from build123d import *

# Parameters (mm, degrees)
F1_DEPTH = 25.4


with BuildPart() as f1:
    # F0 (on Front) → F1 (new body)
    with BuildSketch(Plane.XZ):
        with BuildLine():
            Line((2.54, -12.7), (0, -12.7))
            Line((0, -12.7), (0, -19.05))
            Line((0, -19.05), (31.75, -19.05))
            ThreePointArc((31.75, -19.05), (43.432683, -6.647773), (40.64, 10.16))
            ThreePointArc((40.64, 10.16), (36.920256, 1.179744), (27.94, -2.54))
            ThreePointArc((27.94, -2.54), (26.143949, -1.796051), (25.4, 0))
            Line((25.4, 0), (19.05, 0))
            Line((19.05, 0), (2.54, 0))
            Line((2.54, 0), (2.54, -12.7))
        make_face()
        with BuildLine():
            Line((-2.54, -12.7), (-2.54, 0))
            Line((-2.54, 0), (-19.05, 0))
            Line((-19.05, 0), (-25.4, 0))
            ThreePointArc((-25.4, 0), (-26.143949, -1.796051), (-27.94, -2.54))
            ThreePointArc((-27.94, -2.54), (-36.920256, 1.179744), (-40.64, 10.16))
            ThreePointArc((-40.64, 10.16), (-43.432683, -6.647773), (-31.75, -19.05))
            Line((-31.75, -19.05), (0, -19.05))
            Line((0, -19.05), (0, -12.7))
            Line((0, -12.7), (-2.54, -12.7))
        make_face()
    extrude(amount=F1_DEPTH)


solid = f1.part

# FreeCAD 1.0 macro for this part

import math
import FreeCAD as App
import Part
import Sketcher
from FreeCAD import Vector
Q = App.Units.Quantity

doc = App.newDocument("Part")
body = doc.addObject("PartDesign::Body", "Body")

# Sketch on XZ plane
sketch1 = body.newObject("Sketcher::SketchObject", "Sketch")
sketch1.AttachmentSupport = (doc.getObject("XZ_Plane"), [""])
sketch1.MapMode = "FlatFace"
sketch1.addGeometry(Part.LineSegment(Vector(2.5, -12.7, 0), Vector(-2.5, -12.7, 0)), False)
sketch1.addGeometry(Part.LineSegment(Vector(-2.5, -12.7, 0), Vector(-2.5, 0, 0)), False)
sketch1.addGeometry(Part.LineSegment(Vector(-2.5, 0, 0), Vector(-25.4, 0, 0)), False)
sketch1.addGeometry(Part.ArcOfCircle(Part.Circle(Vector(-27.9, 0, 0), Vector(0, 0, 1), 2.5), math.radians(-90), math.radians(0)), False)
sketch1.addGeometry(Part.ArcOfCircle(Part.Circle(Vector(-27.9, 10.2, 0), Vector(0, 0, 1), 12.7), math.radians(-180), math.radians(-90)), False)
sketch1.addGeometry(Part.ArcOfCircle(Part.Circle(Vector(-25.1, -1.1, 0), Vector(0, 0, 1), 19.2), math.radians(144), math.radians(250)), False)
sketch1.addGeometry(Part.LineSegment(Vector(-31.8, -19.1, 0), Vector(31.8, -19.1, 0)), False)
sketch1.addGeometry(Part.ArcOfCircle(Part.Circle(Vector(25.1, -1.1, 0), Vector(0, 0, 1), 19.2), math.radians(-70), math.radians(36)), False)
sketch1.addGeometry(Part.ArcOfCircle(Part.Circle(Vector(27.9, 10.2, 0), Vector(0, 0, 1), 12.7), math.radians(-90), math.radians(0)), False)
sketch1.addGeometry(Part.ArcOfCircle(Part.Circle(Vector(27.9, 0, 0), Vector(0, 0, 1), 2.5), math.radians(-180), math.radians(-90)), False)
sketch1.addGeometry(Part.LineSegment(Vector(25.4, 0, 0), Vector(2.5, 0, 0)), False)
sketch1.addGeometry(Part.LineSegment(Vector(2.5, 0, 0), Vector(2.5, -12.7, 0)), False)
sketch1.addConstraint(Sketcher.Constraint("Coincident", 0, 2, 1, 1))
sketch1.addConstraint(Sketcher.Constraint("Coincident", 1, 2, 2, 1))
sketch1.addConstraint(Sketcher.Constraint("Coincident", 2, 2, 3, 2))
sketch1.addConstraint(Sketcher.Constraint("Tangent", 3, 1, 4, 2))
sketch1.addConstraint(Sketcher.Constraint("Coincident", 4, 1, 5, 1))
sketch1.addConstraint(Sketcher.Constraint("Coincident", 5, 2, 6, 1))
sketch1.addConstraint(Sketcher.Constraint("Coincident", 6, 2, 7, 1))
sketch1.addConstraint(Sketcher.Constraint("Coincident", 7, 2, 8, 2))
sketch1.addConstraint(Sketcher.Constraint("Tangent", 8, 1, 9, 2))
sketch1.addConstraint(Sketcher.Constraint("Coincident", 9, 1, 10, 1))
sketch1.addConstraint(Sketcher.Constraint("Coincident", 10, 2, 11, 1))
sketch1.addConstraint(Sketcher.Constraint("Coincident", 11, 2, 0, 1))
sketch1.addConstraint(Sketcher.Constraint("Horizontal", 0))
sketch1.addConstraint(Sketcher.Constraint("Vertical", 1))
sketch1.addConstraint(Sketcher.Constraint("Horizontal", 2))
sketch1.addConstraint(Sketcher.Constraint("Horizontal", 6))
sketch1.addConstraint(Sketcher.Constraint("Horizontal", 10))
sketch1.addConstraint(Sketcher.Constraint("Vertical", 11))
sketch1.addConstraint(Sketcher.Constraint("Equal", 5, 7))
sketch1.addConstraint(Sketcher.Constraint("Equal", 4, 8))
sketch1.addConstraint(Sketcher.Constraint("Equal", 3, 9))
sketch1.addConstraint(Sketcher.Constraint("Symmetric", 3, 3, 9, 3, -1, 1))
sketch1.addConstraint(Sketcher.Constraint("Symmetric", 1, 2, 10, 2, -1, 1))
sketch1.addConstraint(Sketcher.Constraint("Symmetric", 5, 3, 7, 3, -2))
sketch1.addConstraint(Sketcher.Constraint("Symmetric", 4, 3, 8, 3, -2))
sketch1.addConstraint(Sketcher.Constraint("PointOnObject", 1, 2, -1))
sketch1.addConstraint(Sketcher.Constraint("Horizontal", 8, 3, 4, 1))
sketch1.addConstraint(Sketcher.Constraint("Vertical", 3, 3, 4, 3))
sketch1.addConstraint(Sketcher.Constraint("Radius", 3, Q("0.1 in")))
sketch1.addConstraint(Sketcher.Constraint("Radius", 4, Q("0.5 in")))
sketch1.addConstraint(Sketcher.Constraint("DistanceX", 0, 2, 0, 1, Q("0.2 in")))
sketch1.addConstraint(Sketcher.Constraint("DistanceX", 2, 2, 2, 1, Q("0.9 in")))
sketch1.addConstraint(Sketcher.Constraint("DistanceX", 6, 1, 6, 2, Q("2.5 in")))
sketch1.addConstraint(Sketcher.Constraint("DistanceY", 1, 1, 1, 2, Q("0.5 in")))
sketch1.addConstraint(Sketcher.Constraint("DistanceY", 5, 2, -1, 1, Q("0.75 in")))
sketch1.addConstraint(Sketcher.Constraint("Radius", 5, 19.185886))
pad1 = body.newObject("PartDesign::Pad", "Pad")
pad1.Profile = sketch1
pad1.Length = Q("1 in")

doc.recompute()
